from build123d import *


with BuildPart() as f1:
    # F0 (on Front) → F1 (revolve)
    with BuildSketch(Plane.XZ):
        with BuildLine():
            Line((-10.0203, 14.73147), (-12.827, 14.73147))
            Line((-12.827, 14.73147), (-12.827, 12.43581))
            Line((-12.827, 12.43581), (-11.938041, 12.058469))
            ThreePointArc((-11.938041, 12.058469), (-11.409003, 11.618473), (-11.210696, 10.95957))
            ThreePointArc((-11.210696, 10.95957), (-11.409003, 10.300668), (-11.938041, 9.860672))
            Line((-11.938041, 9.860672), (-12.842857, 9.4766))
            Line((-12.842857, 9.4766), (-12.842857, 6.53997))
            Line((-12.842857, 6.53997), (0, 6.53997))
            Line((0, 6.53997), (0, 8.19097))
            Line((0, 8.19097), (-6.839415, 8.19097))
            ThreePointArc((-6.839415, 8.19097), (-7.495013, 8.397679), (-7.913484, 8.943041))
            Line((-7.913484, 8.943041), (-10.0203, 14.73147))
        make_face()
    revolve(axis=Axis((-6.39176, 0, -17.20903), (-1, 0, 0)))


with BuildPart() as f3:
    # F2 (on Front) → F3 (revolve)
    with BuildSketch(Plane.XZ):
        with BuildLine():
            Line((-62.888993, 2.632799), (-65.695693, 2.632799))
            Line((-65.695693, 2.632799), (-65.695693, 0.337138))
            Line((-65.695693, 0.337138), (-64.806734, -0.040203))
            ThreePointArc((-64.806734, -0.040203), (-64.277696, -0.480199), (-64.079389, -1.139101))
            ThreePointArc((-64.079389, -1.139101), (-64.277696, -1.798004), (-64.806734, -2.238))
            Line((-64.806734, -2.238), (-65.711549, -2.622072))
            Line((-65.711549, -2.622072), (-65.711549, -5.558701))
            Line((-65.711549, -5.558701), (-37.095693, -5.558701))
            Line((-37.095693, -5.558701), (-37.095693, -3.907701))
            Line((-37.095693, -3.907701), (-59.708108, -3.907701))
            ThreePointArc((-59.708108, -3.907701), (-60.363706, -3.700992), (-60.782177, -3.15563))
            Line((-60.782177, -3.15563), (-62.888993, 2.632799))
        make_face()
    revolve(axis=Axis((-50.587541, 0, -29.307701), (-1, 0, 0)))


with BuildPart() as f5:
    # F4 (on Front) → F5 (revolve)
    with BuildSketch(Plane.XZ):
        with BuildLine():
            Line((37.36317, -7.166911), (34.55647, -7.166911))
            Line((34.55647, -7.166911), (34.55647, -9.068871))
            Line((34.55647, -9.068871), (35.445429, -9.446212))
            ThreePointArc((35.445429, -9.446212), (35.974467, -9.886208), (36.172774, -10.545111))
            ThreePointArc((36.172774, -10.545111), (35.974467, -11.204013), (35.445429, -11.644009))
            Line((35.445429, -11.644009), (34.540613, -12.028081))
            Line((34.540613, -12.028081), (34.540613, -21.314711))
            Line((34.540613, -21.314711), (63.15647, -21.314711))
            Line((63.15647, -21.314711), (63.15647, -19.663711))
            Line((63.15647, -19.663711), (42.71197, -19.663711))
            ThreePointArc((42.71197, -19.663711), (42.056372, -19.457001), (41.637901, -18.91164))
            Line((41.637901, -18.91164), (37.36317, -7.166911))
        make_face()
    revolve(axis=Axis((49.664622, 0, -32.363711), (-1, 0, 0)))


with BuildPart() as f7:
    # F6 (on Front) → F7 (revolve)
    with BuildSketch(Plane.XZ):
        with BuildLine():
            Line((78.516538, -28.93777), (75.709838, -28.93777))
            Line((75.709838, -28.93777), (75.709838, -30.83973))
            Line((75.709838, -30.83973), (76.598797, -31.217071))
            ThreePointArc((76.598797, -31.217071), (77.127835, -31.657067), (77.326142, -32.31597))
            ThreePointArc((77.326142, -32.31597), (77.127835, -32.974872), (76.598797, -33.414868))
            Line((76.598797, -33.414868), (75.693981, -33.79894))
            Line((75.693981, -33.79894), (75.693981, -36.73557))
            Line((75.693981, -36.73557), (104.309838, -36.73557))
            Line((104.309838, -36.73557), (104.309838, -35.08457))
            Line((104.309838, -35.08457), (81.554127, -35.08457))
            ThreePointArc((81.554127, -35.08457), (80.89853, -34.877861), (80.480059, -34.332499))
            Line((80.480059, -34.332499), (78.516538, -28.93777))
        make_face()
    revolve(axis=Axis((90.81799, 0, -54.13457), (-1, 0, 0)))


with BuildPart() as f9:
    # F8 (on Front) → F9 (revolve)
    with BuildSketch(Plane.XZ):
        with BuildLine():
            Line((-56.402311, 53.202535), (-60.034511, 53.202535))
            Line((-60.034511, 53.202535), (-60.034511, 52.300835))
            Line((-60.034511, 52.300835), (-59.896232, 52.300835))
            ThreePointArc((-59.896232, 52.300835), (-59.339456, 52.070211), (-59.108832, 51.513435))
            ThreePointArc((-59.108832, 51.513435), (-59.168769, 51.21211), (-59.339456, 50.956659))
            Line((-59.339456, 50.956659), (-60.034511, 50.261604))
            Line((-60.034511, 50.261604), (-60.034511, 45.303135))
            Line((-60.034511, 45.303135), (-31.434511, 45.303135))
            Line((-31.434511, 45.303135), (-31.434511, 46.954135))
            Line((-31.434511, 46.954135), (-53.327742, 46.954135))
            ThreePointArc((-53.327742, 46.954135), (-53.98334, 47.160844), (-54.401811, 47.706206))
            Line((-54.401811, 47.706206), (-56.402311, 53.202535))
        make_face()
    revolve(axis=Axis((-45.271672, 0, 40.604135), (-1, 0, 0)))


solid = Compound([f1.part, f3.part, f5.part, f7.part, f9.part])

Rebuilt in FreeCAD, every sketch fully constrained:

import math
import FreeCAD as App
import Part
import Sketcher
from FreeCAD import Vector
Q = App.Units.Quantity

doc = App.newDocument("Part")
body = doc.addObject("PartDesign::Body", "Body")

# Sketch on XZ plane
sketch1 = body.newObject("Sketcher::SketchObject", "Sketch")
sketch1.AttachmentSupport = (doc.getObject("XZ_Plane"), [""])
sketch1.MapMode = "FlatFace"
sketch1.addGeometry([
    Part.LineSegment(Vector(-10, 14.7, 0), Vector(-12.8, 14.7, 0)),  # 0
    Part.LineSegment(Vector(-12.8, 14.7, 0), Vector(-12.8, 12.4, 0)),  # 1
    Part.LineSegment(Vector(-12.8, 12.4, 0), Vector(-11.9, 12.1, 0)),  # 2
    Part.ArcOfCircle(Part.Circle(Vector(-12.4, 11, 0), Vector(0, 0, 1), 1.2), math.radians(0), math.radians(67)),  # 3
    Part.ArcOfCircle(Part.Circle(Vector(-12.4, 11, 0), Vector(0, 0, 1), 1.2), math.radians(-67), math.radians(0)),  # 4
    Part.LineSegment(Vector(-11.9, 9.9, 0), Vector(-12.8, 9.5, 0)),  # 5
    Part.LineSegment(Vector(-12.8, 9.5, 0), Vector(-12.8, 6.5, 0)),  # 6
    Part.LineSegment(Vector(-12.8, 6.5, 0), Vector(0, 6.5, 0)),  # 7
    Part.LineSegment(Vector(0, 6.5, 0), Vector(0, 8.2, 0)),  # 8
    Part.LineSegment(Vector(0, 8.2, 0), Vector(-6.8, 8.2, 0)),  # 9
    Part.ArcOfCircle(Part.Circle(Vector(-6.8, 9.3, 0), Vector(0, 0, 1), 1.1), math.radians(-160), math.radians(-90)),  # 10
    Part.LineSegment(Vector(-7.9, 8.9, 0), Vector(-10, 14.7, 0)),  # 11
], False)
sketch1.addGeometry(Part.LineSegment(Vector(0, -17.2, 0), Vector(-12.8, -17.2, 0)), True)  # axis
sketch1.addConstraint([
    Sketcher.Constraint("Coincident", 0, 2, 1, 1),
    Sketcher.Constraint("Coincident", 1, 2, 2, 1),
    Sketcher.Constraint("Tangent", 2, 2, 3, 2),
    Sketcher.Constraint("Tangent", 3, 1, 4, 2),
    Sketcher.Constraint("Tangent", 4, 1, 5, 1),
    Sketcher.Constraint("Coincident", 5, 2, 6, 1),
    Sketcher.Constraint("Coincident", 6, 2, 7, 1),
    Sketcher.Constraint("Coincident", 7, 2, 8, 1),
    Sketcher.Constraint("Coincident", 8, 2, 9, 1),
    Sketcher.Constraint("Tangent", 9, 2, 10, 2),
    Sketcher.Constraint("Tangent", 10, 1, 11, 1),
    Sketcher.Constraint("Coincident", 11, 2, 0, 1),
    Sketcher.Constraint("Horizontal", 0),
    Sketcher.Constraint("Vertical", 1),
    Sketcher.Constraint("Vertical", 6),
    Sketcher.Constraint("Horizontal", 7),
    Sketcher.Constraint("Vertical", 8),
    Sketcher.Constraint("Horizontal", 9),
    Sketcher.Constraint("Horizontal", 12),
    Sketcher.Constraint("Equal", 3, 4),
    Sketcher.Constraint("PointOnObject", 7, 2, -2),
    Sketcher.Constraint("PointOnObject", 12, 1, -2),
    Sketcher.Constraint("Horizontal", 4, 3, 3, 1),
    Sketcher.Constraint("Vertical", 2, 2, 4, 1),
    Sketcher.Constraint("Vertical", 6, 2, 12, 2),
    Sketcher.Constraint("Angle", 2, Q("-23.000016 deg")),
    Sketcher.Constraint("Angle", 11, Q("110.000001 deg")),
    Sketcher.Constraint("Radius", 3, Q("0.047 in")),
    Sketcher.Constraint("Radius", 10, Q("0.045 in")),
    Sketcher.Constraint("DistanceY", 12, 1, 8, 2, Q("1 in")),
    Sketcher.Constraint("DistanceY", 8, 1, 8, 2, Q("0.065 in")),
    Sketcher.Constraint("DistanceX", 0, 2, 0, 1, Q("0.1105 in")),
    Sketcher.Constraint("DistanceX", 0, 2, -1, 1, Q("0.505 in")),
    Sketcher.Constraint("DistanceY", 10, 3, 4, 3, Q("0.064 in")),
    Sketcher.Constraint("DistanceY", 3, 3, 0, 2, Q("0.1485 in")),
    Sketcher.Constraint("DistanceY", 1, 2, 1, 1, 2.29566),
    Sketcher.Constraint("DistanceY", 6, 2, 6, 1, 2.93663),
    Sketcher.Constraint("DistanceY", -1, 1, 5, 2, 9.4766),
])
revolution = body.newObject("PartDesign::Revolution", "Revolution")
revolution.Profile = sketch1
revolution.ReferenceAxis = (sketch1, ["Axis0"])
revolution.Angle = 360
body2 = doc.addObject("PartDesign::Body", "Body001")

# Sketch on XZ plane
sketch2 = body2.newObject("Sketcher::SketchObject", "Sketch001")
sketch2.AttachmentSupport = (doc.getObject("XZ_Plane001"), [""])
sketch2.MapMode = "FlatFace"
sketch2.addGeometry([
    Part.LineSegment(Vector(-62.9, 2.6, 0), Vector(-65.7, 2.6, 0)),  # 0
    Part.LineSegment(Vector(-65.7, 2.6, 0), Vector(-65.7, 0.3, 0)),  # 1
    Part.LineSegment(Vector(-65.7, 0.3, 0), Vector(-64.8, 0, 0)),  # 2
    Part.ArcOfCircle(Part.Circle(Vector(-65.3, -1.1, 0), Vector(0, 0, 1), 1.2), math.radians(0), math.radians(67)),  # 3
    Part.ArcOfCircle(Part.Circle(Vector(-65.3, -1.1, 0), Vector(0, 0, 1), 1.2), math.radians(-67), math.radians(0)),  # 4
    Part.LineSegment(Vector(-64.8, -2.2, 0), Vector(-65.7, -2.6, 0)),  # 5
    Part.LineSegment(Vector(-65.7, -2.6, 0), Vector(-65.7, -5.6, 0)),  # 6
    Part.LineSegment(Vector(-65.7, -5.6, 0), Vector(-37.1, -5.6, 0)),  # 7
    Part.LineSegment(Vector(-37.1, -5.6, 0), Vector(-37.1, -3.9, 0)),  # 8
    Part.LineSegment(Vector(-37.1, -3.9, 0), Vector(-59.7, -3.9, 0)),  # 9
    Part.ArcOfCircle(Part.Circle(Vector(-59.7, -2.8, 0), Vector(0, 0, 1), 1.1), math.radians(-160), math.radians(-90)),  # 10
    Part.LineSegment(Vector(-60.8, -3.2, 0), Vector(-62.9, 2.6, 0)),  # 11
], False)
sketch2.addGeometry(Part.LineSegment(Vector(-37.1, -29.3, 0), Vector(-65.7, -29.3, 0)), True)  # axis
sketch2.addConstraint([
    Sketcher.Constraint("Coincident", 0, 2, 1, 1),
    Sketcher.Constraint("Coincident", 1, 2, 2, 1),
    Sketcher.Constraint("Tangent", 2, 2, 3, 2),
    Sketcher.Constraint("Tangent", 3, 1, 4, 2),
    Sketcher.Constraint("Tangent", 4, 1, 5, 1),
    Sketcher.Constraint("Coincident", 5, 2, 6, 1),
    Sketcher.Constraint("Coincident", 6, 2, 7, 1),
    Sketcher.Constraint("Coincident", 7, 2, 8, 1),
    Sketcher.Constraint("Coincident", 8, 2, 9, 1),
    Sketcher.Constraint("Tangent", 9, 2, 10, 2),
    Sketcher.Constraint("Tangent", 10, 1, 11, 1),
    Sketcher.Constraint("Coincident", 11, 2, 0, 1),
    Sketcher.Constraint("Horizontal", 0),
    Sketcher.Constraint("Vertical", 1),
    Sketcher.Constraint("Vertical", 6),
    Sketcher.Constraint("Horizontal", 7),
    Sketcher.Constraint("Vertical", 8),
    Sketcher.Constraint("Horizontal", 9),
    Sketcher.Constraint("Horizontal", 12),
    Sketcher.Constraint("Equal", 3, 4),
    Sketcher.Constraint("Horizontal", 4, 3, 3, 1),
    Sketcher.Constraint("Vertical", 2, 2, 4, 1),
    Sketcher.Constraint("Vertical", 8, 2, 12, 1),
    Sketcher.Constraint("Vertical", 6, 2, 12, 2),
    Sketcher.Constraint("Angle", 2, Q("-23.000016 deg")),
    Sketcher.Constraint("Angle", 11, Q("110.000001 deg")),
    Sketcher.Constraint("Radius", 3, Q("0.047 in")),
    Sketcher.Constraint("Radius", 10, Q("0.045 in")),
    Sketcher.Constraint("DistanceY", 12, 1, 8, 2, Q("1 in")),
    Sketcher.Constraint("DistanceY", 8, 1, 8, 2, Q("0.065 in")),
    Sketcher.Constraint("DistanceX", 0, 2, 0, 1, Q("0.1105 in")),
    Sketcher.Constraint("DistanceY", 10, 3, 4, 3, Q("0.064 in")),
    Sketcher.Constraint("DistanceY", 3, 3, 0, 2, Q("0.1485 in")),
    Sketcher.Constraint("DistanceY", 1, 2, 1, 1, 2.295661),
    Sketcher.Constraint("DistanceY", 6, 2, 6, 1, 2.936629),
    Sketcher.Constraint("DistanceY", 3, 3, -1, 1, 1.139101),
    Sketcher.Constraint("DistanceX", 7, 1, 7, 2, 28.615856),
    Sketcher.Constraint("DistanceX", 10, 3, -1, 1, 59.708109),
])
revolution2 = body2.newObject("PartDesign::Revolution", "Revolution001")
revolution2.Profile = sketch2
revolution2.ReferenceAxis = (sketch2, ["Axis0"])
revolution2.Angle = 360
body3 = doc.addObject("PartDesign::Body", "Body002")

# Sketch on XZ plane
sketch3 = body3.newObject("Sketcher::SketchObject", "Sketch002")
sketch3.AttachmentSupport = (doc.getObject("XZ_Plane002"), [""])
sketch3.MapMode = "FlatFace"
sketch3.addGeometry([
    Part.LineSegment(Vector(37.4, -7.2, 0), Vector(34.6, -7.2, 0)),  # 0
    Part.LineSegment(Vector(34.6, -7.2, 0), Vector(34.6, -9.1, 0)),  # 1
    Part.LineSegment(Vector(34.6, -9.1, 0), Vector(35.4, -9.4, 0)),  # 2
    Part.ArcOfCircle(Part.Circle(Vector(35, -10.5, 0), Vector(0, 0, 1), 1.2), math.radians(0), math.radians(67)),  # 3
    Part.ArcOfCircle(Part.Circle(Vector(35, -10.5, 0), Vector(0, 0, 1), 1.2), math.radians(-67), math.radians(0)),  # 4
    Part.LineSegment(Vector(35.4, -11.6, 0), Vector(34.5, -12, 0)),  # 5
    Part.LineSegment(Vector(34.5, -12, 0), Vector(34.5, -21.3, 0)),  # 6
    Part.LineSegment(Vector(34.5, -21.3, 0), Vector(63.2, -21.3, 0)),  # 7
    Part.LineSegment(Vector(63.2, -21.3, 0), Vector(63.2, -19.7, 0)),  # 8
    Part.LineSegment(Vector(63.2, -19.7, 0), Vector(42.7, -19.7, 0)),  # 9
    Part.ArcOfCircle(Part.Circle(Vector(42.7, -18.5, 0), Vector(0, 0, 1), 1.1), math.radians(-160), math.radians(-90)),  # 10
    Part.LineSegment(Vector(41.6, -18.9, 0), Vector(37.4, -7.2, 0)),  # 11
], False)
sketch3.addGeometry(Part.LineSegment(Vector(63.2, -32.4, 0), Vector(34.5, -32.4, 0)), True)  # axis
sketch3.addConstraint([
    Sketcher.Constraint("Coincident", 0, 2, 1, 1),
    Sketcher.Constraint("Coincident", 1, 2, 2, 1),
    Sketcher.Constraint("Tangent", 2, 2, 3, 2),
    Sketcher.Constraint("Tangent", 3, 1, 4, 2),
    Sketcher.Constraint("Tangent", 4, 1, 5, 1),
    Sketcher.Constraint("Coincident", 5, 2, 6, 1),
    Sketcher.Constraint("Coincident", 6, 2, 7, 1),
    Sketcher.Constraint("Coincident", 7, 2, 8, 1),
    Sketcher.Constraint("Coincident", 8, 2, 9, 1),
    Sketcher.Constraint("Tangent", 9, 2, 10, 2),
    Sketcher.Constraint("Coincident", 10, 1, 11, 1),
    Sketcher.Constraint("Coincident", 11, 2, 0, 1),
    Sketcher.Constraint("Horizontal", 0),
    Sketcher.Constraint("Vertical", 1),
    Sketcher.Constraint("Vertical", 6),
    Sketcher.Constraint("Horizontal", 7),
    Sketcher.Constraint("Vertical", 8),
    Sketcher.Constraint("Horizontal", 9),
    Sketcher.Constraint("Horizontal", 12),
    Sketcher.Constraint("Equal", 3, 4),
    Sketcher.Constraint("Horizontal", 4, 3, 3, 1),
    Sketcher.Constraint("Vertical", 2, 2, 4, 1),
    Sketcher.Constraint("Vertical", 8, 2, 12, 1),
    Sketcher.Constraint("Vertical", 6, 2, 12, 2),
    Sketcher.Constraint("Angle", 2, Q("-23.000016 deg")),
    Sketcher.Constraint("Angle", 11, Q("109.999997 deg")),
    Sketcher.Constraint("Radius", 3, Q("0.047 in")),
    Sketcher.Constraint("Radius", 10, Q("0.0450001 in")),
    Sketcher.Constraint("DistanceY", 12, 1, 8, 2, Q("0.5 in")),
    Sketcher.Constraint("DistanceY", 8, 1, 8, 2, Q("0.065 in")),
    Sketcher.Constraint("DistanceX", 0, 2, 0, 1, Q("0.1105 in")),
    Sketcher.Constraint("DistanceY", 10, 3, 4, 3, Q("0.3139999 in")),
    Sketcher.Constraint("DistanceY", 3, 3, 0, 2, Q("0.133 in")),
    Sketcher.Constraint("DistanceX", 9, 2, 9, 1, 20.4445),
    Sketcher.Constraint("DistanceY", 1, 2, 1, 1, 1.90196),
    Sketcher.Constraint("DistanceY", 6, 2, 6, 1, 9.28663),
    Sketcher.Constraint("DistanceX", -1, 1, 10, 1, 41.637901),
    Sketcher.Constraint("Distance", 11, 12.498479),
    Sketcher.Constraint("DistanceY", 3, 3, -1, 1, 10.54511),
])
revolution3 = body3.newObject("PartDesign::Revolution", "Revolution002")
revolution3.Profile = sketch3
revolution3.ReferenceAxis = (sketch3, ["Axis0"])
revolution3.Angle = 360
body4 = doc.addObject("PartDesign::Body", "Body003")

# Sketch on XZ plane
sketch4 = body4.newObject("Sketcher::SketchObject", "Sketch003")
sketch4.AttachmentSupport = (doc.getObject("XZ_Plane003"), [""])
sketch4.MapMode = "FlatFace"
sketch4.addGeometry([
    Part.LineSegment(Vector(78.5, -28.9, 0), Vector(75.7, -28.9, 0)),  # 0
    Part.LineSegment(Vector(75.7, -28.9, 0), Vector(75.7, -30.8, 0)),  # 1
    Part.LineSegment(Vector(75.7, -30.8, 0), Vector(76.6, -31.2, 0)),  # 2
    Part.ArcOfCircle(Part.Circle(Vector(76.1, -32.3, 0), Vector(0, 0, 1), 1.2), math.radians(0), math.radians(67)),  # 3
    Part.ArcOfCircle(Part.Circle(Vector(76.1, -32.3, 0), Vector(0, 0, 1), 1.2), math.radians(-67), math.radians(0)),  # 4
    Part.LineSegment(Vector(76.6, -33.4, 0), Vector(75.7, -33.8, 0)),  # 5
    Part.LineSegment(Vector(75.7, -33.8, 0), Vector(75.7, -36.7, 0)),  # 6
    Part.LineSegment(Vector(75.7, -36.7, 0), Vector(104.3, -36.7, 0)),  # 7
    Part.LineSegment(Vector(104.3, -36.7, 0), Vector(104.3, -35.1, 0)),  # 8
    Part.LineSegment(Vector(104.3, -35.1, 0), Vector(81.6, -35.1, 0)),  # 9
    Part.ArcOfCircle(Part.Circle(Vector(81.6, -33.9, 0), Vector(0, 0, 1), 1.1), math.radians(-160), math.radians(-90)),  # 10
    Part.LineSegment(Vector(80.5, -34.3, 0), Vector(78.5, -28.9, 0)),  # 11
], False)
sketch4.addGeometry(Part.LineSegment(Vector(104.3, -54.1, 0), Vector(75.7, -54.1, 0)), True)  # axis
sketch4.addConstraint([
    Sketcher.Constraint("Coincident", 0, 2, 1, 1),
    Sketcher.Constraint("Coincident", 1, 2, 2, 1),
    Sketcher.Constraint("Tangent", 2, 2, 3, 2),
    Sketcher.Constraint("Tangent", 3, 1, 4, 2),
    Sketcher.Constraint("Tangent", 4, 1, 5, 1),
    Sketcher.Constraint("Coincident", 5, 2, 6, 1),
    Sketcher.Constraint("Coincident", 6, 2, 7, 1),
    Sketcher.Constraint("Coincident", 7, 2, 8, 1),
    Sketcher.Constraint("Coincident", 8, 2, 9, 1),
    Sketcher.Constraint("Tangent", 9, 2, 10, 2),
    Sketcher.Constraint("Tangent", 10, 1, 11, 1),
    Sketcher.Constraint("Coincident", 11, 2, 0, 1),
    Sketcher.Constraint("Horizontal", 0),
    Sketcher.Constraint("Vertical", 1),
    Sketcher.Constraint("Vertical", 6),
    Sketcher.Constraint("Horizontal", 7),
    Sketcher.Constraint("Vertical", 8),
    Sketcher.Constraint("Horizontal", 9),
    Sketcher.Constraint("Horizontal", 12),
    Sketcher.Constraint("Equal", 3, 4),
    Sketcher.Constraint("Horizontal", 4, 3, 3, 1),
    Sketcher.Constraint("Vertical", 2, 2, 4, 1),
    Sketcher.Constraint("Vertical", 8, 2, 12, 1),
    Sketcher.Constraint("Vertical", 6, 2, 12, 2),
    Sketcher.Constraint("Angle", 2, Q("-23.000016 deg")),
    Sketcher.Constraint("Angle", 11, Q("110.000002 deg")),
    Sketcher.Constraint("Radius", 3, Q("0.047 in")),
    Sketcher.Constraint("Radius", 10, Q("0.045 in")),
    Sketcher.Constraint("DistanceY", 8, 1, 8, 2, Q("0.065 in")),
    Sketcher.Constraint("DistanceY", 12, 1, 8, 2, Q("0.75 in")),
    Sketcher.Constraint("DistanceX", 0, 2, 0, 1, Q("0.1105 in")),
    Sketcher.Constraint("DistanceY", 10, 3, 4, 3, Q("0.064 in")),
    Sketcher.Constraint("DistanceY", 3, 3, 0, 2, Q("0.133 in")),
    Sketcher.Constraint("DistanceX", 9, 2, 9, 1, 22.755711),
    Sketcher.Constraint("DistanceY", 1, 2, 1, 1, 1.90196),
    Sketcher.Constraint("DistanceY", 6, 2, 6, 1, 2.93663),
    Sketcher.Constraint("DistanceY", 10, 1, -1, 1, 34.332499),
    Sketcher.Constraint("DistanceX", -1, 1, 0, 2, 75.709838),
])
revolution4 = body4.newObject("PartDesign::Revolution", "Revolution003")
revolution4.Profile = sketch4
revolution4.ReferenceAxis = (sketch4, ["Axis0"])
revolution4.Angle = 360
body5 = doc.addObject("PartDesign::Body", "Body004")

# Sketch on XZ plane
sketch5 = body5.newObject("Sketcher::SketchObject", "Sketch004")
sketch5.AttachmentSupport = (doc.getObject("XZ_Plane004"), [""])
sketch5.MapMode = "FlatFace"
sketch5.addGeometry([
    Part.LineSegment(Vector(-56.4, 53.2, 0), Vector(-60.03, 53.2, 0)),  # 0
    Part.LineSegment(Vector(-60.03, 53.2, 0), Vector(-60.03, 52.3, 0)),  # 1
    Part.LineSegment(Vector(-60.03, 52.3, 0), Vector(-59.9, 52.3, 0)),  # 2
    Part.ArcOfCircle(Part.Circle(Vector(-59.9, 51.51, 0), Vector(0, 0, 1), 0.79), math.radians(0), math.radians(90)),  # 3
    Part.ArcOfCircle(Part.Circle(Vector(-59.9, 51.51, 0), Vector(0, 0, 1), 0.79), math.radians(-45), math.radians(0)),  # 4
    Part.LineSegment(Vector(-59.34, 50.96, 0), Vector(-60.03, 50.26, 0)),  # 5
    Part.LineSegment(Vector(-60.03, 50.26, 0), Vector(-60.03, 45.3, 0)),  # 6
    Part.LineSegment(Vector(-60.03, 45.3, 0), Vector(-31.43, 45.3, 0)),  # 7
    Part.LineSegment(Vector(-31.43, 45.3, 0), Vector(-31.43, 46.95, 0)),  # 8
    Part.LineSegment(Vector(-31.43, 46.95, 0), Vector(-53.33, 46.95, 0)),  # 9
    Part.ArcOfCircle(Part.Circle(Vector(-53.33, 48.1, 0), Vector(0, 0, 1), 1.14), math.radians(-160), math.radians(-90)),  # 10
    Part.LineSegment(Vector(-54.4, 47.71, 0), Vector(-56.4, 53.2, 0)),  # 11
], False)
sketch5.addGeometry(Part.LineSegment(Vector(-31.43, 40.6, 0), Vector(-60.03, 40.6, 0)), True)  # axis
sketch5.addConstraint([
    Sketcher.Constraint("Coincident", 0, 2, 1, 1),
    Sketcher.Constraint("Coincident", 1, 2, 2, 1),
    Sketcher.Constraint("Tangent", 2, 2, 3, 2),
    Sketcher.Constraint("Tangent", 3, 1, 4, 2),
    Sketcher.Constraint("Tangent", 4, 1, 5, 1),
    Sketcher.Constraint("Coincident", 5, 2, 6, 1),
    Sketcher.Constraint("Coincident", 6, 2, 7, 1),
    Sketcher.Constraint("Coincident", 7, 2, 8, 1),
    Sketcher.Constraint("Coincident", 8, 2, 9, 1),
    Sketcher.Constraint("Tangent", 9, 2, 10, 2),
    Sketcher.Constraint("Tangent", 10, 1, 11, 1),
    Sketcher.Constraint("Coincident", 11, 2, 0, 1),
    Sketcher.Constraint("Horizontal", 0),
    Sketcher.Constraint("Vertical", 1),
    Sketcher.Constraint("Horizontal", 2),
    Sketcher.Constraint("Vertical", 6),
    Sketcher.Constraint("Horizontal", 7),
    Sketcher.Constraint("Vertical", 8),
    Sketcher.Constraint("Horizontal", 9),
    Sketcher.Constraint("Horizontal", 12),
    Sketcher.Constraint("Equal", 3, 4),
    Sketcher.Constraint("Horizontal", 4, 3, 3, 1),
    Sketcher.Constraint("Vertical", 1, 2, 5, 2),
    Sketcher.Constraint("Vertical", 8, 2, 12, 1),
    Sketcher.Constraint("Vertical", 6, 2, 12, 2),
    Sketcher.Constraint("Angle", 5, Q("-135 deg")),
    Sketcher.Constraint("Angle", 11, Q("109.999999 deg")),
    Sketcher.Constraint("Radius", 3, Q("0.031 in")),
    Sketcher.Constraint("Radius", 10, Q("0.045 in")),
    Sketcher.Constraint("DistanceX", 0, 2, 0, 1, Q("0.143 in")),
    Sketcher.Constraint("DistanceY", 8, 1, 8, 2, Q("0.065 in")),
    Sketcher.Constraint("DistanceY", 12, 1, 8, 2, Q("0.25 in")),
    Sketcher.Constraint("DistanceY", 1, 2, 1, 1, Q("0.0355 in")),
    Sketcher.Constraint("DistanceY", 10, 3, 0, 2, Q("0.201 in")),
    Sketcher.Constraint("DistanceX", 7, 1, 7, 2, 28.6),
    Sketcher.Constraint("DistanceX", 2, 1, 2, 2, 0.138279),
    Sketcher.Constraint("DistanceX", 3, 3, -1, 1, 59.896232),
    Sketcher.Constraint("DistanceY", -1, 1, 4, 1, 50.956659),
])
revolution5 = body5.newObject("PartDesign::Revolution", "Revolution004")
revolution5.Profile = sketch5
revolution5.ReferenceAxis = (sketch5, ["Axis0"])
revolution5.Angle = 360

doc.recompute()
